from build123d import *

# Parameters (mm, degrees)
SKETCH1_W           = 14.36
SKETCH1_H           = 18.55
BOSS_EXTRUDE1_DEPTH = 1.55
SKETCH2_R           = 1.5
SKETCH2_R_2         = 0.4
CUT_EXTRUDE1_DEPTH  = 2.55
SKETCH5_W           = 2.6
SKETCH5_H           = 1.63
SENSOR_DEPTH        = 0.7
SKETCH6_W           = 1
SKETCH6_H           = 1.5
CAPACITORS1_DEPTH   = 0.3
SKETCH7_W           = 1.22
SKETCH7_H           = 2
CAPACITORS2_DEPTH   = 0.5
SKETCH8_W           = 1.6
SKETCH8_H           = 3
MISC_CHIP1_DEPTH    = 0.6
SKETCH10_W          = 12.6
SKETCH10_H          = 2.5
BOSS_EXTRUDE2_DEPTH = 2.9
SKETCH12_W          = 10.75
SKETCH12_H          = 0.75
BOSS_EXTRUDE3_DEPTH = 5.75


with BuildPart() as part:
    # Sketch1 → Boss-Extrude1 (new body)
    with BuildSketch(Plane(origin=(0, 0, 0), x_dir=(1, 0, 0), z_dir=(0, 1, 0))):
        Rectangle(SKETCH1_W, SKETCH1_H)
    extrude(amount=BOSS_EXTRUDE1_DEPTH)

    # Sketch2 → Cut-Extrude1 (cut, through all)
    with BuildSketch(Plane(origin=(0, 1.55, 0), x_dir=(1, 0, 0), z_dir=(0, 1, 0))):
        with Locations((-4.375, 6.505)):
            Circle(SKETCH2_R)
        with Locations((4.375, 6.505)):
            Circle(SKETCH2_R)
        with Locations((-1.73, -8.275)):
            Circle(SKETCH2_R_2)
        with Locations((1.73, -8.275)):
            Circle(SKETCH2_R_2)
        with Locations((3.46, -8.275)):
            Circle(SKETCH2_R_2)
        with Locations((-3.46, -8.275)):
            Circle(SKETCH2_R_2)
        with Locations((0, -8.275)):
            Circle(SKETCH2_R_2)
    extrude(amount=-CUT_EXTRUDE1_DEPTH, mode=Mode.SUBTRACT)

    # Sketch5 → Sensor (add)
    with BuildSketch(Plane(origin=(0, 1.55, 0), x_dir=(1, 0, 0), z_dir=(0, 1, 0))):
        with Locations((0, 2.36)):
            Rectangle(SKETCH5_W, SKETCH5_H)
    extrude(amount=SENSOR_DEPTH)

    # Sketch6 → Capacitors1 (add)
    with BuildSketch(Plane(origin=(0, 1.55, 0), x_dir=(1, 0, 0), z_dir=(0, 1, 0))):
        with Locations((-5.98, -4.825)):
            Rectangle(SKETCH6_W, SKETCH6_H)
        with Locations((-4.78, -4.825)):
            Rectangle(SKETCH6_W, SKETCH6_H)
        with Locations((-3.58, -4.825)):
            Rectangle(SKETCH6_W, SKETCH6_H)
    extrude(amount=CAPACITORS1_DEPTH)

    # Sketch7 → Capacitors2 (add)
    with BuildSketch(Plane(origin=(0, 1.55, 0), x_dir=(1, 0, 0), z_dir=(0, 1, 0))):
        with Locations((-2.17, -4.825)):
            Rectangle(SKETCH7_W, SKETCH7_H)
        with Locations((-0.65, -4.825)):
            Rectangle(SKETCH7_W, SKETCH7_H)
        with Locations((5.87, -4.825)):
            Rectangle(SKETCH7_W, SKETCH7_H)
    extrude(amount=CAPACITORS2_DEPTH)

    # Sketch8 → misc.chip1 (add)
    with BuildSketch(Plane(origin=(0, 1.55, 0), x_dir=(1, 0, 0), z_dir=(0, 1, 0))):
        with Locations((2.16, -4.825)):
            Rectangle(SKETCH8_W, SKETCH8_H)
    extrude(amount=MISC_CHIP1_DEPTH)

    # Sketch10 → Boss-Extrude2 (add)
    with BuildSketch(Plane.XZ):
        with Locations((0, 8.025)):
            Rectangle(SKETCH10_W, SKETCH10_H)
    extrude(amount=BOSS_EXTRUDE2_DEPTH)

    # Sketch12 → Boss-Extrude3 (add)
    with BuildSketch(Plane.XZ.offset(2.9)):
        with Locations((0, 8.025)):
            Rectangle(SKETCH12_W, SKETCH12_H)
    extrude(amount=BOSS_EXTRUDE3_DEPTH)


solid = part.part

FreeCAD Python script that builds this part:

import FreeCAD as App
import Part
import Sketcher
from FreeCAD import Vector
Q = App.Units.Quantity

doc = App.newDocument("Part")
body = doc.addObject("PartDesign::Body", "Body")

# Sketch on XZ plane
sketch1 = doc.addObject("Sketcher::SketchObject", "Sketch")
body.addObject(sketch1)
sketch1.AttachmentSupport = (doc.XZ_Plane, [""])
sketch1.MapMode = "FlatFace"
sketch1.addGeometry([
    Part.LineSegment(Vector(-7, -9, 0), Vector(-7, 9, 0)),
    Part.LineSegment(Vector(-7, 9, 0), Vector(7, 9, 0)),
    Part.LineSegment(Vector(7, 9, 0), Vector(7, -9, 0)),
    Part.LineSegment(Vector(7, -9, 0), Vector(-7, -9, 0)),
], False)
sketch1.addConstraint([
    Sketcher.Constraint("Coincident", 0, 2, 1, 1),
    Sketcher.Constraint("Coincident", 1, 2, 2, 1),
    Sketcher.Constraint("Coincident", 2, 2, 3, 1),
    Sketcher.Constraint("Coincident", 3, 2, 0, 1),
    Sketcher.Constraint("Vertical", 0),
    Sketcher.Constraint("Horizontal", 1),
    Sketcher.Constraint("Vertical", 2),
    Sketcher.Constraint("Horizontal", 3),
    Sketcher.Constraint("Symmetric", 0, 2, 2, 2, -1, 1),
    Sketcher.Constraint("DistanceX", 1, 1, 1, 2, Q("14.36 mm")),
    Sketcher.Constraint("DistanceY", 0, 1, 0, 2, Q("18.55 mm")),
])
pad1 = doc.addObject("PartDesign::Pad", "Pad")
body.addObject(pad1)
pad1.Profile = sketch1
pad1.Length = 1.55
pad1.Reversed = True

# Sketch on XZ plane
sketch2 = doc.addObject("Sketcher::SketchObject", "Sketch001")
body.addObject(sketch2)
sketch2.AttachmentSupport = (doc.XZ_Plane, [""])
sketch2.MapMode = "FlatFace"
sketch2.AttachmentOffset = App.Placement(Vector(0, 0, -1.55), App.Rotation())
sketch2.addGeometry([
    Part.Circle(Vector(-4.38, -6.5, 0), Vector(0, 0, 1), 1.5),  # 0
    Part.Circle(Vector(4.38, -6.5, 0), Vector(0, 0, 1), 1.5),  # 1
    Part.Circle(Vector(-1.73, 8.28, 0), Vector(0, 0, 1), 0.4),  # 2
    Part.Circle(Vector(1.73, 8.28, 0), Vector(0, 0, 1), 0.4),  # 3
    Part.Circle(Vector(3.46, 8.28, 0), Vector(0, 0, 1), 0.4),  # 4
    Part.Circle(Vector(-3.46, 8.28, 0), Vector(0, 0, 1), 0.4),  # 5
    Part.Circle(Vector(0, 8.28, 0), Vector(0, 0, 1), 0.4),  # 6
], False)
sketch2.addConstraint([
    Sketcher.Constraint("Equal", 0, 1),
    Sketcher.Constraint("Equal", 2, 3),
    Sketcher.Constraint("Equal", 3, 4),
    Sketcher.Constraint("Equal", 4, 5),
    Sketcher.Constraint("Equal", 5, 6),
    Sketcher.Constraint("Symmetric", 0, 3, 1, 3, -2),
    Sketcher.Constraint("Symmetric", 2, 3, 3, 3, -2),
    Sketcher.Constraint("Symmetric", 4, 3, 5, 3, -2),
    Sketcher.Constraint("PointOnObject", 6, 3, -2),
    Sketcher.Constraint("Horizontal", 3, 3, 4, 3),
    Sketcher.Constraint("Horizontal", 5, 3, 6, 3),
    Sketcher.Constraint("Diameter", 0, Q("3 mm")),
    Sketcher.Constraint("Diameter", 2, Q("0.8 mm")),
    Sketcher.Constraint("DistanceX", 2, 3, -1, 1, Q("1.73 mm")),
    Sketcher.Constraint("DistanceX", -1, 1, 4, 3, Q("3.46 mm")),
    Sketcher.Constraint("DistanceX", 0, 3, 1, 3, Q("8.75 mm")),
    Sketcher.Constraint("DistanceY", 0, 3, 2, 3, Q("14.78 mm")),
    Sketcher.Constraint("DistanceY", 0, 3, -1, 1, Q("6.505 mm")),
])
pocket1 = doc.addObject("PartDesign::Pocket", "Pocket")
body.addObject(pocket1)
pocket1.Profile = sketch2
pocket1.Type = "ThroughAll"
pocket1.Reversed = True

# Sketch on XZ plane
sketch3 = doc.addObject("Sketcher::SketchObject", "Sketch002")
body.addObject(sketch3)
sketch3.AttachmentSupport = (doc.XZ_Plane, [""])
sketch3.MapMode = "FlatFace"
sketch3.AttachmentOffset = App.Placement(Vector(0, 0, -1.55), App.Rotation())
sketch3.addGeometry([
    Part.LineSegment(Vector(-1.3, -3.2, 0), Vector(-1.3, -1.5, 0)),
    Part.LineSegment(Vector(-1.3, -1.5, 0), Vector(1.3, -1.5, 0)),
    Part.LineSegment(Vector(1.3, -1.5, 0), Vector(1.3, -3.2, 0)),
    Part.LineSegment(Vector(1.3, -3.2, 0), Vector(-1.3, -3.2, 0)),
], False)
sketch3.addConstraint([
    Sketcher.Constraint("Coincident", 0, 2, 1, 1),
    Sketcher.Constraint("Coincident", 1, 2, 2, 1),
    Sketcher.Constraint("Coincident", 2, 2, 3, 1),
    Sketcher.Constraint("Coincident", 3, 2, 0, 1),
    Sketcher.Constraint("Vertical", 0),
    Sketcher.Constraint("Horizontal", 1),
    Sketcher.Constraint("Vertical", 2),
    Sketcher.Constraint("Horizontal", 3),
    Sketcher.Constraint("DistanceX", 1, 1, 1, 2, Q("2.6 mm")),
    Sketcher.Constraint("DistanceY", 0, 1, 0, 2, Q("1.63 mm")),
    Sketcher.Constraint("DistanceX", 0, 2, -1, 1, Q("1.3 mm")),
    Sketcher.Constraint("DistanceY", 0, 2, -1, 1, Q("1.545 mm")),
])
pad2 = doc.addObject("PartDesign::Pad", "Pad001")
body.addObject(pad2)
pad2.Profile = sketch3
pad2.Length = 0.7
pad2.Reversed = True

# Sketch on XZ plane
sketch4 = doc.addObject("Sketcher::SketchObject", "Sketch003")
body.addObject(sketch4)
sketch4.AttachmentSupport = (doc.XZ_Plane, [""])
sketch4.MapMode = "FlatFace"
sketch4.AttachmentOffset = App.Placement(Vector(0, 0, -1.55), App.Rotation())
sketch4.addGeometry([
    Part.LineSegment(Vector(-6.5, 4.1, 0), Vector(-6.5, 5.6, 0)),  # 0
    Part.LineSegment(Vector(-6.5, 5.6, 0), Vector(-5.5, 5.6, 0)),  # 1
    Part.LineSegment(Vector(-5.5, 5.6, 0), Vector(-5.5, 4.1, 0)),  # 2
    Part.LineSegment(Vector(-5.5, 4.1, 0), Vector(-6.5, 4.1, 0)),  # 3
    Part.LineSegment(Vector(-5.3, 4.1, 0), Vector(-5.3, 5.6, 0)),  # 4
    Part.LineSegment(Vector(-5.3, 5.6, 0), Vector(-4.3, 5.6, 0)),  # 5
    Part.LineSegment(Vector(-4.3, 5.6, 0), Vector(-4.3, 4.1, 0)),  # 6
    Part.LineSegment(Vector(-4.3, 4.1, 0), Vector(-5.3, 4.1, 0)),  # 7
    Part.LineSegment(Vector(-4.1, 4.1, 0), Vector(-4.1, 5.6, 0)),  # 8
    Part.LineSegment(Vector(-4.1, 5.6, 0), Vector(-3.1, 5.6, 0)),  # 9
    Part.LineSegment(Vector(-3.1, 5.6, 0), Vector(-3.1, 4.1, 0)),  # 10
    Part.LineSegment(Vector(-3.1, 4.1, 0), Vector(-4.1, 4.1, 0)),  # 11
], False)
sketch4.addConstraint([
    Sketcher.Constraint("Coincident", 0, 2, 1, 1),
    Sketcher.Constraint("Coincident", 1, 2, 2, 1),
    Sketcher.Constraint("Coincident", 2, 2, 3, 1),
    Sketcher.Constraint("Coincident", 3, 2, 0, 1),
    Sketcher.Constraint("Coincident", 4, 2, 5, 1),
    Sketcher.Constraint("Coincident", 5, 2, 6, 1),
    Sketcher.Constraint("Coincident", 6, 2, 7, 1),
    Sketcher.Constraint("Coincident", 7, 2, 4, 1),
    Sketcher.Constraint("Coincident", 8, 2, 9, 1),
    Sketcher.Constraint("Coincident", 9, 2, 10, 1),
    Sketcher.Constraint("Coincident", 10, 2, 11, 1),
    Sketcher.Constraint("Coincident", 11, 2, 8, 1),
    Sketcher.Constraint("Vertical", 0),
    Sketcher.Constraint("Horizontal", 1),
    Sketcher.Constraint("Vertical", 2),
    Sketcher.Constraint("Horizontal", 3),
    Sketcher.Constraint("Vertical", 4),
    Sketcher.Constraint("Horizontal", 5),
    Sketcher.Constraint("Vertical", 6),
    Sketcher.Constraint("Horizontal", 7),
    Sketcher.Constraint("Vertical", 8),
    Sketcher.Constraint("Horizontal", 9),
    Sketcher.Constraint("Vertical", 10),
    Sketcher.Constraint("Horizontal", 11),
    Sketcher.Constraint("Horizontal", 1, 2, 4, 2),
    Sketcher.Constraint("Horizontal", 3, 2, 6, 2),
    Sketcher.Constraint("Horizontal", 5, 2, 8, 2),
    Sketcher.Constraint("Horizontal", 7, 2, 10, 2),
    Sketcher.Constraint("Equal", 3, 5),
    Sketcher.Constraint("Equal", 7, 9),
    Sketcher.Constraint("DistanceX", 1, 1, 1, 2, Q("1 mm")),
    Sketcher.Constraint("DistanceY", 0, 1, 0, 2, Q("1.5 mm")),
    Sketcher.Constraint("DistanceX", 1, 2, 4, 2, Q("0.2 mm")),
    Sketcher.Constraint("DistanceX", 5, 2, 8, 2, Q("0.2 mm")),
    Sketcher.Constraint("DistanceX", 0, 2, -1, 1, Q("6.48 mm")),
    Sketcher.Constraint("DistanceY", -1, 1, 0, 2, Q("5.575 mm")),
])
pad3 = doc.addObject("PartDesign::Pad", "Pad002")
body.addObject(pad3)
pad3.Profile = sketch4
pad3.Length = 0.3
pad3.Reversed = True

# Sketch on XZ plane
sketch5 = doc.addObject("Sketcher::SketchObject", "Sketch004")
body.addObject(sketch5)
sketch5.AttachmentSupport = (doc.XZ_Plane, [""])
sketch5.MapMode = "FlatFace"
sketch5.AttachmentOffset = App.Placement(Vector(0, 0, -1.55), App.Rotation())
sketch5.addGeometry([
    Part.LineSegment(Vector(-2.8, 3.8, 0), Vector(-2.8, 5.8, 0)),  # 0
    Part.LineSegment(Vector(-2.8, 5.8, 0), Vector(-1.6, 5.8, 0)),  # 1
    Part.LineSegment(Vector(-1.6, 5.8, 0), Vector(-1.6, 3.8, 0)),  # 2
    Part.LineSegment(Vector(-1.6, 3.8, 0), Vector(-2.8, 3.8, 0)),  # 3
    Part.LineSegment(Vector(-1.3, 3.8, 0), Vector(-1.3, 5.8, 0)),  # 4
    Part.LineSegment(Vector(-1.3, 5.8, 0), Vector(0, 5.8, 0)),  # 5
    Part.LineSegment(Vector(0, 5.8, 0), Vector(0, 3.8, 0)),  # 6
    Part.LineSegment(Vector(0, 3.8, 0), Vector(-1.3, 3.8, 0)),  # 7
    Part.LineSegment(Vector(5.3, 3.8, 0), Vector(5.3, 5.8, 0)),  # 8
    Part.LineSegment(Vector(5.3, 5.8, 0), Vector(6.5, 5.8, 0)),  # 9
    Part.LineSegment(Vector(6.5, 5.8, 0), Vector(6.5, 3.8, 0)),  # 10
    Part.LineSegment(Vector(6.5, 3.8, 0), Vector(5.3, 3.8, 0)),  # 11
], False)
sketch5.addConstraint([
    Sketcher.Constraint("Coincident", 0, 2, 1, 1),
    Sketcher.Constraint("Coincident", 1, 2, 2, 1),
    Sketcher.Constraint("Coincident", 2, 2, 3, 1),
    Sketcher.Constraint("Coincident", 3, 2, 0, 1),
    Sketcher.Constraint("Coincident", 4, 2, 5, 1),
    Sketcher.Constraint("Coincident", 5, 2, 6, 1),
    Sketcher.Constraint("Coincident", 6, 2, 7, 1),
    Sketcher.Constraint("Coincident", 7, 2, 4, 1),
    Sketcher.Constraint("Coincident", 8, 2, 9, 1),
    Sketcher.Constraint("Coincident", 9, 2, 10, 1),
    Sketcher.Constraint("Coincident", 10, 2, 11, 1),
    Sketcher.Constraint("Coincident", 11, 2, 8, 1),
    Sketcher.Constraint("Vertical", 0),
    Sketcher.Constraint("Horizontal", 1),
    Sketcher.Constraint("Vertical", 2),
    Sketcher.Constraint("Horizontal", 3),
    Sketcher.Constraint("Vertical", 4),
    Sketcher.Constraint("Horizontal", 5),
    Sketcher.Constraint("Vertical", 6),
    Sketcher.Constraint("Horizontal", 7),
    Sketcher.Constraint("Vertical", 8),
    Sketcher.Constraint("Horizontal", 9),
    Sketcher.Constraint("Vertical", 10),
    Sketcher.Constraint("Horizontal", 11),
    Sketcher.Constraint("Horizontal", 1, 2, 4, 2),
    Sketcher.Constraint("Horizontal", 3, 2, 6, 2),
    Sketcher.Constraint("Horizontal", 5, 2, 8, 2),
    Sketcher.Constraint("Horizontal", 7, 2, 10, 2),
    Sketcher.Constraint("Equal", 3, 5),
    Sketcher.Constraint("Equal", 7, 9),
    Sketcher.Constraint("DistanceY", 0, 1, 0, 2, Q("2 mm")),
    Sketcher.Constraint("DistanceX", 1, 1, 1, 2, Q("1.22 mm")),
    Sketcher.Constraint("DistanceX", 1, 2, 4, 2, Q("0.3 mm")),
    Sketcher.Constraint("DistanceX", 5, 2, 8, 2, Q("5.3 mm")),
    Sketcher.Constraint("DistanceX", 0, 2, -1, 1, Q("2.78 mm")),
    Sketcher.Constraint("DistanceY", -1, 1, 0, 2, Q("5.825 mm")),
])
pad4 = doc.addObject("PartDesign::Pad", "Pad003")
body.addObject(pad4)
pad4.Profile = sketch5
pad4.Length = 0.5
pad4.Reversed = True

# Sketch on XZ plane
sketch6 = doc.addObject("Sketcher::SketchObject", "Sketch005")
body.addObject(sketch6)
sketch6.AttachmentSupport = (doc.XZ_Plane, [""])
sketch6.MapMode = "FlatFace"
sketch6.AttachmentOffset = App.Placement(Vector(0, 0, -1.55), App.Rotation())
sketch6.addGeometry([
    Part.LineSegment(Vector(1.4, 3.3, 0), Vector(1.4, 6.3, 0)),
    Part.LineSegment(Vector(1.4, 6.3, 0), Vector(3, 6.3, 0)),
    Part.LineSegment(Vector(3, 6.3, 0), Vector(3, 3.3, 0)),
    Part.LineSegment(Vector(3, 3.3, 0), Vector(1.4, 3.3, 0)),
], False)
sketch6.addConstraint([
    Sketcher.Constraint("Coincident", 0, 2, 1, 1),
    Sketcher.Constraint("Coincident", 1, 2, 2, 1),
    Sketcher.Constraint("Coincident", 2, 2, 3, 1),
    Sketcher.Constraint("Coincident", 3, 2, 0, 1),
    Sketcher.Constraint("Vertical", 0),
    Sketcher.Constraint("Horizontal", 1),
    Sketcher.Constraint("Vertical", 2),
    Sketcher.Constraint("Horizontal", 3),
    Sketcher.Constraint("DistanceY", 0, 1, 0, 2, Q("3 mm")),
    Sketcher.Constraint("DistanceX", 1, 1, 1, 2, Q("1.6 mm")),
    Sketcher.Constraint("DistanceX", -1, 1, 0, 2, Q("1.36 mm")),
    Sketcher.Constraint("DistanceY", -1, 1, 0, 2, Q("6.325 mm")),
])
pad5 = doc.addObject("PartDesign::Pad", "Pad004")
body.addObject(pad5)
pad5.Profile = sketch6
pad5.Length = 0.6
pad5.Reversed = True

# Sketch on XZ plane
sketch7 = doc.addObject("Sketcher::SketchObject", "Sketch006")
body.addObject(sketch7)
sketch7.AttachmentSupport = (doc.XZ_Plane, [""])
sketch7.MapMode = "FlatFace"
sketch7.addGeometry([
    Part.LineSegment(Vector(-6.3, 9.3, 0), Vector(-6.3, 6.8, 0)),
    Part.LineSegment(Vector(-6.3, 6.8, 0), Vector(6.3, 6.8, 0)),
    Part.LineSegment(Vector(6.3, 6.8, 0), Vector(6.3, 9.3, 0)),
    Part.LineSegment(Vector(6.3, 9.3, 0), Vector(-6.3, 9.3, 0)),
], False)
sketch7.addConstraint([
    Sketcher.Constraint("Coincident", 0, 2, 1, 1),
    Sketcher.Constraint("Coincident", 1, 2, 2, 1),
    Sketcher.Constraint("Coincident", 2, 2, 3, 1),
    Sketcher.Constraint("Coincident", 3, 2, 0, 1),
    Sketcher.Constraint("Vertical", 0),
    Sketcher.Constraint("Horizontal", 1),
    Sketcher.Constraint("Vertical", 2),
    Sketcher.Constraint("Horizontal", 3),
    Sketcher.Constraint("DistanceX", 1, 1, 1, 2, Q("12.6 mm")),
    Sketcher.Constraint("DistanceY", 0, 2, 0, 1, Q("2.5 mm")),
    Sketcher.Constraint("DistanceX", 0, 2, -1, 1, Q("6.3 mm")),
    Sketcher.Constraint("DistanceY", -1, 1, 0, 2, Q("6.775 mm")),
])
pad6 = doc.addObject("PartDesign::Pad", "Pad005")
body.addObject(pad6)
pad6.Profile = sketch7
pad6.Length = 2.9

# Sketch on XZ plane
sketch8 = doc.addObject("Sketcher::SketchObject", "Sketch007")
body.addObject(sketch8)
sketch8.AttachmentSupport = (doc.XZ_Plane, [""])
sketch8.MapMode = "FlatFace"
sketch8.AttachmentOffset = App.Placement(Vector(0, 0, 2.9), App.Rotation())
sketch8.addGeometry([
    Part.LineSegment(Vector(-5.4, 8.4, 0), Vector(-5.4, 7.7, 0)),
    Part.LineSegment(Vector(-5.4, 7.7, 0), Vector(5.4, 7.7, 0)),
    Part.LineSegment(Vector(5.4, 7.7, 0), Vector(5.4, 8.4, 0)),
    Part.LineSegment(Vector(5.4, 8.4, 0), Vector(-5.4, 8.4, 0)),
], False)
sketch8.addConstraint([
    Sketcher.Constraint("Coincident", 0, 2, 1, 1),
    Sketcher.Constraint("Coincident", 1, 2, 2, 1),
    Sketcher.Constraint("Coincident", 2, 2, 3, 1),
    Sketcher.Constraint("Coincident", 3, 2, 0, 1),
    Sketcher.Constraint("Vertical", 0),
    Sketcher.Constraint("Horizontal", 1),
    Sketcher.Constraint("Vertical", 2),
    Sketcher.Constraint("Horizontal", 3),
    Sketcher.Constraint("DistanceX", 1, 1, 1, 2, Q("10.75 mm")),
    Sketcher.Constraint("DistanceY", 0, 2, 0, 1, Q("0.75 mm")),
    Sketcher.Constraint("DistanceY", -1, 1, 2, 2, Q("8.4 mm")),
    Sketcher.Constraint("DistanceX", 0, 2, -1, 1, Q("5.375 mm")),
])
pad7 = doc.addObject("PartDesign::Pad", "Pad006")
body.addObject(pad7)
pad7.Profile = sketch8
pad7.Length = 5.75

doc.recompute()
